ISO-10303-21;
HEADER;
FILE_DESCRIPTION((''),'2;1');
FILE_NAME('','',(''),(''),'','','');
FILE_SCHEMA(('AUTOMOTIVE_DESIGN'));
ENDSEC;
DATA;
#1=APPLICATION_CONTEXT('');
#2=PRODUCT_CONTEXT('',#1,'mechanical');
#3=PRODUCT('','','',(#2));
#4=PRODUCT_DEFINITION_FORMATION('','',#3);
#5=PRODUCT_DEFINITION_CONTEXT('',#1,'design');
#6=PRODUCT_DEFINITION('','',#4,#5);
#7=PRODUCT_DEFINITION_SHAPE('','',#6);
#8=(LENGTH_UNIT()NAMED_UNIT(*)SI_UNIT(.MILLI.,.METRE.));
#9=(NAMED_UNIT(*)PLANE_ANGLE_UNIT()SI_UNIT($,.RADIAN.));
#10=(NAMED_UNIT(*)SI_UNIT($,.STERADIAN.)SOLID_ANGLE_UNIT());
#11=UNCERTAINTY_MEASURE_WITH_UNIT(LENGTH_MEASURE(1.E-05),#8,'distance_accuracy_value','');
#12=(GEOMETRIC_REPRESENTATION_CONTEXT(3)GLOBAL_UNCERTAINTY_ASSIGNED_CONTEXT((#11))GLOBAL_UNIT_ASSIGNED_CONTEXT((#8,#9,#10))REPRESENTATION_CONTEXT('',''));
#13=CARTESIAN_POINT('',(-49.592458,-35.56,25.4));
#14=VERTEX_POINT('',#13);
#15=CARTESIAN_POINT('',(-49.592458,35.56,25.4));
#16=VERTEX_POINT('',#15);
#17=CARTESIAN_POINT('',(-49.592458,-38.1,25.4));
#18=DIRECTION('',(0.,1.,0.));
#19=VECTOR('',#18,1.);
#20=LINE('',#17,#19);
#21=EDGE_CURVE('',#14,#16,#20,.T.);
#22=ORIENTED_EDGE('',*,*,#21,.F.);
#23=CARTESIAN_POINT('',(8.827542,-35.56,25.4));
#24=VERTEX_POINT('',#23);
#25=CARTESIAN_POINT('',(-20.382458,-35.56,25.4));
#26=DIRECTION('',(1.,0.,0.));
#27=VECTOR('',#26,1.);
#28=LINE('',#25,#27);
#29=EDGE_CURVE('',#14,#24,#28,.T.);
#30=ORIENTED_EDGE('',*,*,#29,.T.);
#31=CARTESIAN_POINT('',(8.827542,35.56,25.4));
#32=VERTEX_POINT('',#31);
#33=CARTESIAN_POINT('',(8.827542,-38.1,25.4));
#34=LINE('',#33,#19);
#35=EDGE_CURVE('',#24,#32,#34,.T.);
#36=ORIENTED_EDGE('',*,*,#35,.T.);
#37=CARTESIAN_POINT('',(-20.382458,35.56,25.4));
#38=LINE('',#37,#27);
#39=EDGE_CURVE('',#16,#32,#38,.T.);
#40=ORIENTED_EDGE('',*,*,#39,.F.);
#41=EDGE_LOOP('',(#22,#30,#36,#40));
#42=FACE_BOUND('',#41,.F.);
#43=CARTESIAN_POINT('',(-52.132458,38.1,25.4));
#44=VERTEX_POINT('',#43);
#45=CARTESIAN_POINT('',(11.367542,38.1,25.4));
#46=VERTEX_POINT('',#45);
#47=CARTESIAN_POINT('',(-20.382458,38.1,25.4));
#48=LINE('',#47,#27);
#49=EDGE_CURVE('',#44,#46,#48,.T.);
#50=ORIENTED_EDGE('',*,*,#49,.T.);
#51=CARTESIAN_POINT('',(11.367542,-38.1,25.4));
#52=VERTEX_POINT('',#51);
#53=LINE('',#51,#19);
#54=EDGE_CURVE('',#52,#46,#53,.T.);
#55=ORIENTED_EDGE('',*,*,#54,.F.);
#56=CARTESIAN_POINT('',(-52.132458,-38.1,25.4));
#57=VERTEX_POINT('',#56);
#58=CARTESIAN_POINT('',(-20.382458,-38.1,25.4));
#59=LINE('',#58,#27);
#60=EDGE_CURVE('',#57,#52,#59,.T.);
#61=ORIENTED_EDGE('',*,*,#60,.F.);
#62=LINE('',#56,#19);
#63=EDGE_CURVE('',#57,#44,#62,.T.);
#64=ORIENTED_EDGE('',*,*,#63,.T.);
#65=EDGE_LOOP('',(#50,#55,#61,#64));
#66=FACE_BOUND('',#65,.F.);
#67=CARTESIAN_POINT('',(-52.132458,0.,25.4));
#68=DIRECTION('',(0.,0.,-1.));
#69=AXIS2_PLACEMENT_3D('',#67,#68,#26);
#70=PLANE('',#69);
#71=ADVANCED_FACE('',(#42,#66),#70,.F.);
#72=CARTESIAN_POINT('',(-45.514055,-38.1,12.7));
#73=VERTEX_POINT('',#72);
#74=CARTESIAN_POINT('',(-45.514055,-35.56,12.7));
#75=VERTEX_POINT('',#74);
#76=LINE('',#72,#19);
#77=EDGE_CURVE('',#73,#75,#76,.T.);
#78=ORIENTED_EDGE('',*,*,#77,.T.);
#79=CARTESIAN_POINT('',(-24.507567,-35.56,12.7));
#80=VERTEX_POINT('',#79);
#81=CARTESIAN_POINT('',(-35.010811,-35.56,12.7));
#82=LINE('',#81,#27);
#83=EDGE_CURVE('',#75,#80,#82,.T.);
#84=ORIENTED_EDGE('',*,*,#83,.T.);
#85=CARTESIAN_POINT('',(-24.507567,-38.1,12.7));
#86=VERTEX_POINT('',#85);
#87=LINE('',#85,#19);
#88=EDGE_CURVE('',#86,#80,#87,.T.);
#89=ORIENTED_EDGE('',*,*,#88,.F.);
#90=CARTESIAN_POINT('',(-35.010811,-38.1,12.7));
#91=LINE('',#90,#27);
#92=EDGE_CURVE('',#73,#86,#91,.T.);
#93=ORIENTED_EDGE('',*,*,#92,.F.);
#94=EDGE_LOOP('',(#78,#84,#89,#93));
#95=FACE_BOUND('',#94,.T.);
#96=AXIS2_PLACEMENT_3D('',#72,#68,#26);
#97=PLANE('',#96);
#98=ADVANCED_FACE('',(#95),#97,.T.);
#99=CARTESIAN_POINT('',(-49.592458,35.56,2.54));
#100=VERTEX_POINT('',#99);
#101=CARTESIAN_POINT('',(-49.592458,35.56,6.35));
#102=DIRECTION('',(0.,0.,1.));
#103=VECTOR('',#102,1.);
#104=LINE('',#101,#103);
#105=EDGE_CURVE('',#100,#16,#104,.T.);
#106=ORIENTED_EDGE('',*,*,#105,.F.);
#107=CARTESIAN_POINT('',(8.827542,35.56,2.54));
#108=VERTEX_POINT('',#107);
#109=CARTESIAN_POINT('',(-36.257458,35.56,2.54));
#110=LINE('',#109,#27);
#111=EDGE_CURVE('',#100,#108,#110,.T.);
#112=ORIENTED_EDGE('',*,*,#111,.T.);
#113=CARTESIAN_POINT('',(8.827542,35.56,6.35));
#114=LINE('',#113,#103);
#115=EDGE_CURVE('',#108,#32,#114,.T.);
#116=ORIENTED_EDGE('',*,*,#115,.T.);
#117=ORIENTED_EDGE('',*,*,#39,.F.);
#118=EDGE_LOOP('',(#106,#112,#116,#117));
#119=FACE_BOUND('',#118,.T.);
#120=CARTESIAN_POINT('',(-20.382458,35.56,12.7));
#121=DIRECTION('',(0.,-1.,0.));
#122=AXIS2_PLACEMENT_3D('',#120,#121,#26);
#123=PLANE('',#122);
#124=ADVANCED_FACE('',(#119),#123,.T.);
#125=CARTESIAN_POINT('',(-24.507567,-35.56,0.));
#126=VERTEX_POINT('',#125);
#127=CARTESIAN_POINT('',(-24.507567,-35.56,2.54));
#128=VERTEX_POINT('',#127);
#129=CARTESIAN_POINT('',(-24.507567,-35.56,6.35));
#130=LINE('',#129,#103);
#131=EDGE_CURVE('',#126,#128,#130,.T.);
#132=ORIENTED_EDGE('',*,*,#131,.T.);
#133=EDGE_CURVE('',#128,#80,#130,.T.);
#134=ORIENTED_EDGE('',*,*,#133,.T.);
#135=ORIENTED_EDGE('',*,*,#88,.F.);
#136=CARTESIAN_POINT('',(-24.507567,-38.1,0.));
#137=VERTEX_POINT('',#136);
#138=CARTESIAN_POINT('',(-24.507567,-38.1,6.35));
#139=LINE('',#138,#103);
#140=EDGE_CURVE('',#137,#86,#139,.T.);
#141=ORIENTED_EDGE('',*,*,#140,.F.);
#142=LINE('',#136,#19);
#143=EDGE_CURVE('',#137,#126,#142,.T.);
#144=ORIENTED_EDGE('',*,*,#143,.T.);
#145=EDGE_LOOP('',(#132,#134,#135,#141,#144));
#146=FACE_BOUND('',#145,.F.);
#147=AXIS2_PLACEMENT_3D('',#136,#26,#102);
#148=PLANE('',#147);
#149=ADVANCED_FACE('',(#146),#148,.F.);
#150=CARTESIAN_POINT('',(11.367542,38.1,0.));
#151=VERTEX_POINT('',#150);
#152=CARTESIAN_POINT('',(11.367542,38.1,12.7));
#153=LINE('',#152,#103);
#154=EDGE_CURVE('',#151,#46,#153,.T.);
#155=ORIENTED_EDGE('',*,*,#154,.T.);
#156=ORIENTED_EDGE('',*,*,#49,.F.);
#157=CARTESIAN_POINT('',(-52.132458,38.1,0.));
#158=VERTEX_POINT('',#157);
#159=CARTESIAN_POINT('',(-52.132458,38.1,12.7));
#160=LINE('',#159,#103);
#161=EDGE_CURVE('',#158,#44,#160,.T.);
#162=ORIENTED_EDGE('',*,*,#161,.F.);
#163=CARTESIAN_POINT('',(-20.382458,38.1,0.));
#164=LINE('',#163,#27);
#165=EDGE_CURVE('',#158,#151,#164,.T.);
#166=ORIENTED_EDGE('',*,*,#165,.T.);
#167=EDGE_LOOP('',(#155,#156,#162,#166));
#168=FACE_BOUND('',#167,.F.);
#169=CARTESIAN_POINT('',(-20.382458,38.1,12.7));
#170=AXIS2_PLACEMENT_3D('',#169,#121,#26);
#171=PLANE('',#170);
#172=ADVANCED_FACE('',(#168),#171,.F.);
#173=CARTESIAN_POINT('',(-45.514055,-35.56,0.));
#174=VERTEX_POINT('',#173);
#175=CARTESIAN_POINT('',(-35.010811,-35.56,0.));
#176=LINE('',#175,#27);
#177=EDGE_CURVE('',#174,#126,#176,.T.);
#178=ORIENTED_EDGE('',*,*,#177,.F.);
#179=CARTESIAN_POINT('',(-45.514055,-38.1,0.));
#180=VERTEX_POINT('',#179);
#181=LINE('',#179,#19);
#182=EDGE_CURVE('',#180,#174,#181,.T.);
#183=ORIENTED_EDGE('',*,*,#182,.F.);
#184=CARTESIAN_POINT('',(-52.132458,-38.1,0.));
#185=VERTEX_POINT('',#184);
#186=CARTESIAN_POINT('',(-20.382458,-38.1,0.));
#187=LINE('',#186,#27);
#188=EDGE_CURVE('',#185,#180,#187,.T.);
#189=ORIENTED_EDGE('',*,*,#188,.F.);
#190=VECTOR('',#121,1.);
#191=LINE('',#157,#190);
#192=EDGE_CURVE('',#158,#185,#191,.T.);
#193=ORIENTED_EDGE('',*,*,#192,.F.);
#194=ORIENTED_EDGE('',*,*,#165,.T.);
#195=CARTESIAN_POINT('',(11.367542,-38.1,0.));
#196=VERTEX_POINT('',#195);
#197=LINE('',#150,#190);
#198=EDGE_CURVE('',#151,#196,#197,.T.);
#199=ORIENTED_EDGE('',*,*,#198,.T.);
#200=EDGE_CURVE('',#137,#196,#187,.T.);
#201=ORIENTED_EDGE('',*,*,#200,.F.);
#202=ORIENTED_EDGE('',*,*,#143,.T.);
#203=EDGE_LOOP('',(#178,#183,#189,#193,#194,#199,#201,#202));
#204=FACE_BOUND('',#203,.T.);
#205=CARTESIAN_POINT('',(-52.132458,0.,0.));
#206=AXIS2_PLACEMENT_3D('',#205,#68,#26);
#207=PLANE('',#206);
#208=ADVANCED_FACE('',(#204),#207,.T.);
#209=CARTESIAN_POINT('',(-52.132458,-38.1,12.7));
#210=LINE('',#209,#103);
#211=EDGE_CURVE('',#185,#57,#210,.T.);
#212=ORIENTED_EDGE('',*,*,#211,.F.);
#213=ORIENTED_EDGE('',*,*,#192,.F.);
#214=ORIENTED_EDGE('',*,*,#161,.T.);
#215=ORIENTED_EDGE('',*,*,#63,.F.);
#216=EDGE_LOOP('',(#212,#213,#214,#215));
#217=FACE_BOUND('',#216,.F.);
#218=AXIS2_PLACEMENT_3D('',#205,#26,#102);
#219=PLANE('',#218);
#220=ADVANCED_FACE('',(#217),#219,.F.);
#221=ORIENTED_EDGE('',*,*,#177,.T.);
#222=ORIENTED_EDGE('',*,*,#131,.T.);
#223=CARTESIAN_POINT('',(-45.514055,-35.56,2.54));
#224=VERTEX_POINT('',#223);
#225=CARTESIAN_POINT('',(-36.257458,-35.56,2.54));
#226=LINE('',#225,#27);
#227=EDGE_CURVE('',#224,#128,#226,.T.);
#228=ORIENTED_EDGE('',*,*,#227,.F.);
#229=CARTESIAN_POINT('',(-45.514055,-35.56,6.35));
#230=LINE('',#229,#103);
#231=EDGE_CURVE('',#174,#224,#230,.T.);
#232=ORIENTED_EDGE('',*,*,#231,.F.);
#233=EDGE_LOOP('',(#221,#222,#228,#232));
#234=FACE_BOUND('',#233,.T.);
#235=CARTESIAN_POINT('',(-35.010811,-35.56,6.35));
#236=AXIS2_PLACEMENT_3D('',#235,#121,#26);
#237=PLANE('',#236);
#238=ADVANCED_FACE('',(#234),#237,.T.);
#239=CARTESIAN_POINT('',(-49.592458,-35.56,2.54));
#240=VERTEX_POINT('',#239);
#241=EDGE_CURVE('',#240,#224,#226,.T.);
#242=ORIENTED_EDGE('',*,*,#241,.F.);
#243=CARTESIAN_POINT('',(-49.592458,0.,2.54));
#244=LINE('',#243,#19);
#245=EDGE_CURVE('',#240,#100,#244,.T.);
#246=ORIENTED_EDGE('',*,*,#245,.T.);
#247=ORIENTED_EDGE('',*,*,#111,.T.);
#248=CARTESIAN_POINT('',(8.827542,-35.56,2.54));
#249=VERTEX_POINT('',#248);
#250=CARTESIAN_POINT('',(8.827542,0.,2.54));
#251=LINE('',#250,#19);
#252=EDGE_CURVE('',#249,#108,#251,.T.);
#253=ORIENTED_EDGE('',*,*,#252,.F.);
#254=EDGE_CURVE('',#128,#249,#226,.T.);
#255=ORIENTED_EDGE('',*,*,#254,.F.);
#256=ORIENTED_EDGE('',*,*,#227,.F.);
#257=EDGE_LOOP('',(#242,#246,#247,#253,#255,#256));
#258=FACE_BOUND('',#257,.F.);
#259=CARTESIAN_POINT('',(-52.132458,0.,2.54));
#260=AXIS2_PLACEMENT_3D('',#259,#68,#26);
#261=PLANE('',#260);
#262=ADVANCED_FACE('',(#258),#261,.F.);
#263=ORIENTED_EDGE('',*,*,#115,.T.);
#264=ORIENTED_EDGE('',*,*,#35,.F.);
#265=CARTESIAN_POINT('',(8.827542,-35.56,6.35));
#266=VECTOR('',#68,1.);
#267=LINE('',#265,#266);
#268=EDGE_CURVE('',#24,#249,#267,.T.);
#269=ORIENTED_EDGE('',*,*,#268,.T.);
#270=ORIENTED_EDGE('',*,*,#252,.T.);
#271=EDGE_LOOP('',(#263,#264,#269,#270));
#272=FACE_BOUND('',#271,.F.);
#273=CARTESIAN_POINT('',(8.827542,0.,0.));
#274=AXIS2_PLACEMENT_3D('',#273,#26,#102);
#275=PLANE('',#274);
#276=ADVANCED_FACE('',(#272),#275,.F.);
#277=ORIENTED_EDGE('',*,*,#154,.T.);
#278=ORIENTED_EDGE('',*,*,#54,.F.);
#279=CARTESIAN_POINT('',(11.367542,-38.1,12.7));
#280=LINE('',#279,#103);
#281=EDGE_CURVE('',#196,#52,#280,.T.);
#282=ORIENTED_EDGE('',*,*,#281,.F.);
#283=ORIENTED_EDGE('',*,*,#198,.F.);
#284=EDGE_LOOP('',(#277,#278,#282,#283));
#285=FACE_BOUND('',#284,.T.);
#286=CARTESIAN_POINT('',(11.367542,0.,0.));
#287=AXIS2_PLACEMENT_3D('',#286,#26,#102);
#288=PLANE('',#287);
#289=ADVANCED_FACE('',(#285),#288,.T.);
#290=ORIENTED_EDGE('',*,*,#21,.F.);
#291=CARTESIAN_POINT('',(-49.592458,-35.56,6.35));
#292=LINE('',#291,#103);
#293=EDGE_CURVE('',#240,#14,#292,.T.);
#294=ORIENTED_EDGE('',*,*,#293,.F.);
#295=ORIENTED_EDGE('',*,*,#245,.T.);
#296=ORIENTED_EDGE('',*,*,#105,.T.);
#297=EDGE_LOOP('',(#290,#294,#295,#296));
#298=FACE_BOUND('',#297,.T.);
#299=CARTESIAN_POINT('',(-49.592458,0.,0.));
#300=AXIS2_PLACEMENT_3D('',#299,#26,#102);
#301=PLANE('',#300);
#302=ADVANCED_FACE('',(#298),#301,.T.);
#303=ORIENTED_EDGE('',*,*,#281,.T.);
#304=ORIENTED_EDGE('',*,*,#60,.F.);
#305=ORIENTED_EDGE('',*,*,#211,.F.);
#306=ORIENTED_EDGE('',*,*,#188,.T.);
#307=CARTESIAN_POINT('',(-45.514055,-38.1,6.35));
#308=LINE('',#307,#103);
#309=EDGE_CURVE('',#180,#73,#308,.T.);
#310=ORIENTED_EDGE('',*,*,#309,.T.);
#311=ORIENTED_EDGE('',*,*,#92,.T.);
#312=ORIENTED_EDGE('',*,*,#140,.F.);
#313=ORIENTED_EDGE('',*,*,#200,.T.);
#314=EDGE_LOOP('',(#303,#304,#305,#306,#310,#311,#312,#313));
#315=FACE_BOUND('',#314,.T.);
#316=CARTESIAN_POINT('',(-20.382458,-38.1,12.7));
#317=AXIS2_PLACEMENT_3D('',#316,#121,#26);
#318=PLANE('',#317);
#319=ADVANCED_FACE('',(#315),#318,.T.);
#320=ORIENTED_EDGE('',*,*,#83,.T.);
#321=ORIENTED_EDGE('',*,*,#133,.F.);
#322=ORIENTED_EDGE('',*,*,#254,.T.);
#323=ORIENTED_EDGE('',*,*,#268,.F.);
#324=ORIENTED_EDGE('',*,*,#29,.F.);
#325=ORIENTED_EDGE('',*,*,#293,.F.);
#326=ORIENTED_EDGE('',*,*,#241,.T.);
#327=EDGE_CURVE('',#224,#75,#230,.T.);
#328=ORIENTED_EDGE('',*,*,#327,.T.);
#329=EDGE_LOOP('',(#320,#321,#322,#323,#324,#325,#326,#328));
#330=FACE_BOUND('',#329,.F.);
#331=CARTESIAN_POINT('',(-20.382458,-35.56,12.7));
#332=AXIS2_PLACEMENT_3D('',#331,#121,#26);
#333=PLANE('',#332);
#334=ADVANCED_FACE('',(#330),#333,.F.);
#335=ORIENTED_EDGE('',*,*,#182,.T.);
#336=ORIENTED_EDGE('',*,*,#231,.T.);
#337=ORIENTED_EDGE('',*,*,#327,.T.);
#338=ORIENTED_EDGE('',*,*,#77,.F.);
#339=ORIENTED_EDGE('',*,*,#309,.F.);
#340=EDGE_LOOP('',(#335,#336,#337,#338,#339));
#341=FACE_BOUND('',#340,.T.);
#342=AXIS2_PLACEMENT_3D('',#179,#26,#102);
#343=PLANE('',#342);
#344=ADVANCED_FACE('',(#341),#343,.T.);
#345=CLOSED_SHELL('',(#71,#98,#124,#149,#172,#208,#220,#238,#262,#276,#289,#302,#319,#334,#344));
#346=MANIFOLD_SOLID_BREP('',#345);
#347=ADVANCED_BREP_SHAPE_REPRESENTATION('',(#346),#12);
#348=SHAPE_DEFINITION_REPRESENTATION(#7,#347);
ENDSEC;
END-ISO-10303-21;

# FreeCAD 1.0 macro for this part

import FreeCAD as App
import Part
import Sketcher
from FreeCAD import Vector
Q = App.Units.Quantity


def faces_at(feature, points):
    """Names of the faces that lie closest to the given points."""
    faces = feature.Shape.Faces
    near = lambda p: min(range(len(faces)), key=lambda i: faces[i].distToShape(Part.Vertex(*p))[0])
    return sorted({f"Face{near(p) + 1}" for p in points})


def add_polygon(sketch, points):
    """Adds a closed chain of lines whose ends are joined by coincident constraints."""
    first, n = sketch.GeometryCount, len(points)
    for a, b in zip(points, points[1:] + points[:1]):
        sketch.addGeometry(Part.LineSegment(App.Vector(*a, 0), App.Vector(*b, 0)), False)
    for i in range(n):
        sketch.addConstraint(Sketcher.Constraint("Coincident", first + i, 2, first + (i + 1) % n, 1))

doc = App.newDocument("Part")
params = doc.addObject("Spreadsheet::Sheet", "Params")
for row, (alias, value) in enumerate([
    ("sketch1_height", "1 in"),
    ("sketch1_width", "2.5 in"),
    ("pad1_length", "3 in"),
    ("thickness_wall", "0.1 in"),
    ("sketch2_height", "0.5 in"),
    ("pocket1_length", "0.1 in"),
], start=1):
    params.set(f"A{row}", alias)
    params.set(f"B{row}", "=" + value)
    params.setAlias(f"B{row}", alias)

body = doc.addObject("PartDesign::Body", "Body")

# Sketch on XZ plane
sketch1 = body.newObject("Sketcher::SketchObject", "Sketch")
sketch1.AttachmentSupport = (doc.getObject("XZ_Plane"), [""])
sketch1.MapMode = "FlatFace"
add_polygon(sketch1, [(-52, 25), (-52, 0), (11, 0), (11, 25)])  # lines 0-3
sketch1.addConstraint(Sketcher.Constraint("Vertical", 0))
sketch1.addConstraint(Sketcher.Constraint("Horizontal", 1))
sketch1.addConstraint(Sketcher.Constraint("Vertical", 2))
sketch1.addConstraint(Sketcher.Constraint("Horizontal", 3))
sketch1.addConstraint(Sketcher.Constraint("PointOnObject", 0, 2, -1))
sketch1.addConstraint(Sketcher.Constraint("DistanceY", 0, 2, 0, 1, Q("1 in")))
sketch1.addConstraint(Sketcher.Constraint("DistanceX", 1, 1, 1, 2, Q("2.5 in")))
sketch1.addConstraint(Sketcher.Constraint("DistanceX", 0, 2, -1, 1, 52.132458))
sketch1.setExpression("Constraints[9]", "Params.sketch1_height")
sketch1.setExpression("Constraints[10]", "Params.sketch1_width")
pad1 = body.newObject("PartDesign::Pad", "Pad")
pad1.Profile = sketch1
pad1.setExpression("Length", "Params.pad1_length")
pad1.Midplane = True
doc.recompute()

thickness = body.newObject("PartDesign::Thickness", "Thickness")
thickness.Base = (pad1, faces_at(pad1, [(-20.382, 0, 25.4)]))
thickness.setExpression("Value", "Params.thickness_wall")
thickness.Reversed = True
thickness.Join = "Arc"

# Sketch on XZ plane
sketch2 = body.newObject("Sketcher::SketchObject", "Sketch001")
sketch2.AttachmentSupport = (doc.getObject("XZ_Plane"), [""])
sketch2.MapMode = "FlatFace"
sketch2.AttachmentOffset = App.Placement(Vector(0, 0, 1.5 * 25.4), App.Rotation())
add_polygon(sketch2, [(-46, 13), (-46, 0), (-25, 0), (-25, 13)])  # lines 0-3
sketch2.addConstraint(Sketcher.Constraint("Vertical", 0))
sketch2.addConstraint(Sketcher.Constraint("Horizontal", 1))
sketch2.addConstraint(Sketcher.Constraint("Vertical", 2))
sketch2.addConstraint(Sketcher.Constraint("Horizontal", 3))
sketch2.addConstraint(Sketcher.Constraint("PointOnObject", 0, 2, -1))
sketch2.addConstraint(Sketcher.Constraint("DistanceY", 0, 2, 0, 1, Q("0.5 in")))
sketch2.addConstraint(Sketcher.Constraint("DistanceX", 1, 1, 1, 2, 21.006488))
sketch2.addConstraint(Sketcher.Constraint("DistanceX", 0, 2, -1, 1, 45.514055))
sketch2.setExpression("Constraints[9]", "Params.sketch2_height")
pocket1 = body.newObject("PartDesign::Pocket", "Pocket")
pocket1.Profile = sketch2
pocket1.setExpression("Length", "Params.pocket1_length")

doc.recompute()
